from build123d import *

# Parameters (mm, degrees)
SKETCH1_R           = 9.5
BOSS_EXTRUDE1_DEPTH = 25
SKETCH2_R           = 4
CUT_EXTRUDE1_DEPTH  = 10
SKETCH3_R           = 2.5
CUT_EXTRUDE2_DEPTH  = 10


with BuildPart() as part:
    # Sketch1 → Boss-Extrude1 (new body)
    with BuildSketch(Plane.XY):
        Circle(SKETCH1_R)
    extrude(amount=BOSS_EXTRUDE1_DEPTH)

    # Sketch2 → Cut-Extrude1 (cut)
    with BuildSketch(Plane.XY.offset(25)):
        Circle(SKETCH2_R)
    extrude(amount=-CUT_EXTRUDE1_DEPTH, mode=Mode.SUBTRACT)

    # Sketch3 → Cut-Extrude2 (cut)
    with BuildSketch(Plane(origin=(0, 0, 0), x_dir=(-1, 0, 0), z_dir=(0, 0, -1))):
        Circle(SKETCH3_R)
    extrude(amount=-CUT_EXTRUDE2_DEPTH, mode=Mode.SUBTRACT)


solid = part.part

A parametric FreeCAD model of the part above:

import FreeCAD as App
import Part
import Sketcher
from FreeCAD import Vector

doc = App.newDocument("Part")
body = doc.addObject("PartDesign::Body", "Body")

# Sketch on XY plane
sketch1 = doc.addObject("Sketcher::SketchObject", "Sketch")
body.addObject(sketch1)
sketch1.AttachmentSupport = (doc.XY_Plane, [""])
sketch1.MapMode = "FlatFace"
sketch1.addGeometry(Part.Circle(Vector(0, 0, 0), Vector(0, 0, 1), 9.5), False)
sketch1.addConstraint(Sketcher.Constraint("Coincident", 0, 3, -1, 1))
sketch1.addConstraint(Sketcher.Constraint("Diameter", 0, 19.0))
pad1 = doc.addObject("PartDesign::Pad", "Pad")
body.addObject(pad1)
pad1.Profile = sketch1
pad1.Length = 25

# Sketch on XY plane
sketch2 = doc.addObject("Sketcher::SketchObject", "Sketch001")
body.addObject(sketch2)
sketch2.AttachmentSupport = (doc.XY_Plane, [""])
sketch2.MapMode = "FlatFace"
sketch2.AttachmentOffset = App.Placement(Vector(0, 0, 25), App.Rotation())
sketch2.addGeometry(Part.Circle(Vector(0, 0, 0), Vector(0, 0, 1), 4), False)
sketch2.addConstraint(Sketcher.Constraint("Coincident", 0, 3, -1, 1))
sketch2.addConstraint(Sketcher.Constraint("Diameter", 0, 8.0))
pocket1 = doc.addObject("PartDesign::Pocket", "Pocket")
body.addObject(pocket1)
pocket1.Profile = sketch2
pocket1.Length = 10

# Sketch on XY plane
sketch3 = doc.addObject("Sketcher::SketchObject", "Sketch002")
body.addObject(sketch3)
sketch3.AttachmentSupport = (doc.XY_Plane, [""])
sketch3.MapMode = "FlatFace"
sketch3.addGeometry(Part.Circle(Vector(0, 0, 0), Vector(0, 0, 1), 2.5), False)
sketch3.addConstraint(Sketcher.Constraint("Coincident", 0, 3, -1, 1))
sketch3.addConstraint(Sketcher.Constraint("Diameter", 0, 5.0))
pocket2 = doc.addObject("PartDesign::Pocket", "Pocket001")
body.addObject(pocket2)
pocket2.Profile = sketch3
pocket2.Length = 10
pocket2.Reversed = True

doc.recompute()
